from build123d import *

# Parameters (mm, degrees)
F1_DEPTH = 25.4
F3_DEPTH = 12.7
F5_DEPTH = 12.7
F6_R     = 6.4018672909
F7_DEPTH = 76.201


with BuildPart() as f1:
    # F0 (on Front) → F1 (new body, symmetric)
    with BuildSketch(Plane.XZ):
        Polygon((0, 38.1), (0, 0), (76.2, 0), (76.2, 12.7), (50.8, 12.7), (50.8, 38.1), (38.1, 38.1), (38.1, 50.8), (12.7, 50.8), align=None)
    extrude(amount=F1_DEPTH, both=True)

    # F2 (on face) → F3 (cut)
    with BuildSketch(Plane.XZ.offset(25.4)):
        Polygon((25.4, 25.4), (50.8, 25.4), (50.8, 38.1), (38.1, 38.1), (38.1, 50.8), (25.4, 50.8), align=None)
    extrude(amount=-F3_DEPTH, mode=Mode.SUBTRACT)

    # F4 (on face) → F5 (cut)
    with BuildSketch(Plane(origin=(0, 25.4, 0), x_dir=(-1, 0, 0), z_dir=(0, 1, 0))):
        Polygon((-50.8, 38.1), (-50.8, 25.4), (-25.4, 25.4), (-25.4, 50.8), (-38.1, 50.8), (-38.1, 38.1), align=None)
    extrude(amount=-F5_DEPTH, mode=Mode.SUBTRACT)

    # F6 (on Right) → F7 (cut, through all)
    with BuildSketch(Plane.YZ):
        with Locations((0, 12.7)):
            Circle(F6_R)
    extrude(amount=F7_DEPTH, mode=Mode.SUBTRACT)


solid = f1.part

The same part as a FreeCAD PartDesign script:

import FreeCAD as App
import Part
import Sketcher

V = App.Vector
Q = App.Units.Quantity


def add_polygon(sketch, points):
    """Adds a closed chain of lines whose ends are joined by coincident constraints."""
    first, n = sketch.GeometryCount, len(points)
    for a, b in zip(points, points[1:] + points[:1]):
        sketch.addGeometry(Part.LineSegment(App.Vector(*a, 0), App.Vector(*b, 0)), False)
    for i in range(n):
        sketch.addConstraint(Sketcher.Constraint("Coincident", first + i, 2, first + (i + 1) % n, 1))

doc = App.newDocument("Part")
body = doc.addObject("PartDesign::Body", "Body")

# Sketch on XZ plane
sketch1 = doc.addObject("Sketcher::SketchObject", "Sketch")
body.addObject(sketch1)
sketch1.AttachmentSupport = (doc.XZ_Plane, [""])
sketch1.MapMode = "FlatFace"
add_polygon(sketch1, [(0, 38), (0, 0), (76, 0), (76, 13), (51, 13), (51, 38), (38, 38), (38, 51), (13, 51)])  # lines 0-8
sketch1.addConstraint(Sketcher.Constraint("Vertical", 0))
sketch1.addConstraint(Sketcher.Constraint("Horizontal", 1))
sketch1.addConstraint(Sketcher.Constraint("Vertical", 2))
sketch1.addConstraint(Sketcher.Constraint("Horizontal", 3))
sketch1.addConstraint(Sketcher.Constraint("Vertical", 4))
sketch1.addConstraint(Sketcher.Constraint("Horizontal", 5))
sketch1.addConstraint(Sketcher.Constraint("Vertical", 6))
sketch1.addConstraint(Sketcher.Constraint("Horizontal", 7))
sketch1.addConstraint(Sketcher.Constraint("Coincident", 0, 2, -1, 1))
sketch1.addConstraint(Sketcher.Constraint("Horizontal", 5, 2, 8, 2))
sketch1.addConstraint(Sketcher.Constraint("Equal", 3, 7))
sketch1.addConstraint(Sketcher.Constraint("Equal", 5, 2))
sketch1.addConstraint(Sketcher.Constraint("Equal", 7, 4))
sketch1.addConstraint(Sketcher.Constraint("Equal", 2, 6))
sketch1.addConstraint(Sketcher.Constraint("DistanceX", 1, 1, 1, 2, Q("3 in")))
sketch1.addConstraint(Sketcher.Constraint("DistanceX", 3, 2, 3, 1, Q("1 in")))
sketch1.addConstraint(Sketcher.Constraint("DistanceX", 5, 2, 5, 1, Q("0.5 in")))
pad1 = doc.addObject("PartDesign::Pad", "Pad")
body.addObject(pad1)
pad1.Profile = sketch1
pad1.Length = Q("2 in")
pad1.Midplane = True

# Sketch on XZ plane
sketch2 = doc.addObject("Sketcher::SketchObject", "Sketch001")
body.addObject(sketch2)
sketch2.AttachmentSupport = (doc.XZ_Plane, [""])
sketch2.MapMode = "FlatFace"
sketch2.AttachmentOffset = App.Placement(V(0, 0, 1 * 25.4), App.Rotation())
add_polygon(sketch2, [(25, 25), (51, 25), (51, 38), (38, 38), (38, 51), (25, 51)])  # lines 0-5
sketch2.addConstraint(Sketcher.Constraint("Horizontal", 0))
sketch2.addConstraint(Sketcher.Constraint("Vertical", 1))
sketch2.addConstraint(Sketcher.Constraint("Horizontal", 2))
sketch2.addConstraint(Sketcher.Constraint("Vertical", 3))
sketch2.addConstraint(Sketcher.Constraint("Horizontal", 4))
sketch2.addConstraint(Sketcher.Constraint("Vertical", 5))
sketch2.addConstraint(Sketcher.Constraint("Equal", 2, 4))
sketch2.addConstraint(Sketcher.Constraint("Equal", 4, 1))
sketch2.addConstraint(Sketcher.Constraint("Equal", 1, 3))
sketch2.addConstraint(Sketcher.Constraint("DistanceX", 0, 1, 0, 2, Q("1 in")))
sketch2.addConstraint(Sketcher.Constraint("DistanceX", -1, 1, 0, 2, Q("2 in")))
sketch2.addConstraint(Sketcher.Constraint("DistanceY", -1, 1, 0, 2, Q("1 in")))
pocket1 = doc.addObject("PartDesign::Pocket", "Pocket")
body.addObject(pocket1)
pocket1.Profile = sketch2
pocket1.Length = Q("0.5 in")

# Sketch on XZ plane
sketch3 = doc.addObject("Sketcher::SketchObject", "Sketch002")
body.addObject(sketch3)
sketch3.AttachmentSupport = (doc.XZ_Plane, [""])
sketch3.MapMode = "FlatFace"
sketch3.AttachmentOffset = App.Placement(V(0, 0, -1 * 25.4), App.Rotation())
add_polygon(sketch3, [(51, 38), (51, 25), (25, 25), (25, 51), (38, 51), (38, 38)])  # lines 0-5
sketch3.addConstraint(Sketcher.Constraint("Vertical", 0))
sketch3.addConstraint(Sketcher.Constraint("Horizontal", 1))
sketch3.addConstraint(Sketcher.Constraint("Vertical", 2))
sketch3.addConstraint(Sketcher.Constraint("Horizontal", 3))
sketch3.addConstraint(Sketcher.Constraint("Vertical", 4))
sketch3.addConstraint(Sketcher.Constraint("Horizontal", 5))
sketch3.addConstraint(Sketcher.Constraint("Equal", 3, 5))
sketch3.addConstraint(Sketcher.Constraint("Equal", 5, 0))
sketch3.addConstraint(Sketcher.Constraint("Equal", 1, 2))
sketch3.addConstraint(Sketcher.Constraint("DistanceX", 1, 2, 1, 1, Q("1 in")))
sketch3.addConstraint(Sketcher.Constraint("DistanceX", -1, 1, 0, 2, Q("2 in")))
sketch3.addConstraint(Sketcher.Constraint("DistanceY", -1, 1, 0, 2, Q("1 in")))
pocket2 = doc.addObject("PartDesign::Pocket", "Pocket001")
body.addObject(pocket2)
pocket2.Profile = sketch3
pocket2.Length = Q("0.5 in")
pocket2.Reversed = True

# Sketch on YZ plane
sketch4 = doc.addObject("Sketcher::SketchObject", "Sketch003")
body.addObject(sketch4)
sketch4.AttachmentSupport = (doc.YZ_Plane, [""])
sketch4.MapMode = "FlatFace"
sketch4.addGeometry(Part.Circle(V(0, 13, 0), V(0, 0, 1), 6), False)
sketch4.addConstraint(Sketcher.Constraint("PointOnObject", 0, 3, -2))
sketch4.addConstraint(Sketcher.Constraint("DistanceY", -1, 1, 0, 3, Q("0.5 in")))
sketch4.addConstraint(Sketcher.Constraint("Diameter", 0, 12.803735))
pocket3 = doc.addObject("PartDesign::Pocket", "Pocket002")
body.addObject(pocket3)
pocket3.Profile = sketch4
pocket3.Type = "ThroughAll"
pocket3.Reversed = True

doc.recompute()
